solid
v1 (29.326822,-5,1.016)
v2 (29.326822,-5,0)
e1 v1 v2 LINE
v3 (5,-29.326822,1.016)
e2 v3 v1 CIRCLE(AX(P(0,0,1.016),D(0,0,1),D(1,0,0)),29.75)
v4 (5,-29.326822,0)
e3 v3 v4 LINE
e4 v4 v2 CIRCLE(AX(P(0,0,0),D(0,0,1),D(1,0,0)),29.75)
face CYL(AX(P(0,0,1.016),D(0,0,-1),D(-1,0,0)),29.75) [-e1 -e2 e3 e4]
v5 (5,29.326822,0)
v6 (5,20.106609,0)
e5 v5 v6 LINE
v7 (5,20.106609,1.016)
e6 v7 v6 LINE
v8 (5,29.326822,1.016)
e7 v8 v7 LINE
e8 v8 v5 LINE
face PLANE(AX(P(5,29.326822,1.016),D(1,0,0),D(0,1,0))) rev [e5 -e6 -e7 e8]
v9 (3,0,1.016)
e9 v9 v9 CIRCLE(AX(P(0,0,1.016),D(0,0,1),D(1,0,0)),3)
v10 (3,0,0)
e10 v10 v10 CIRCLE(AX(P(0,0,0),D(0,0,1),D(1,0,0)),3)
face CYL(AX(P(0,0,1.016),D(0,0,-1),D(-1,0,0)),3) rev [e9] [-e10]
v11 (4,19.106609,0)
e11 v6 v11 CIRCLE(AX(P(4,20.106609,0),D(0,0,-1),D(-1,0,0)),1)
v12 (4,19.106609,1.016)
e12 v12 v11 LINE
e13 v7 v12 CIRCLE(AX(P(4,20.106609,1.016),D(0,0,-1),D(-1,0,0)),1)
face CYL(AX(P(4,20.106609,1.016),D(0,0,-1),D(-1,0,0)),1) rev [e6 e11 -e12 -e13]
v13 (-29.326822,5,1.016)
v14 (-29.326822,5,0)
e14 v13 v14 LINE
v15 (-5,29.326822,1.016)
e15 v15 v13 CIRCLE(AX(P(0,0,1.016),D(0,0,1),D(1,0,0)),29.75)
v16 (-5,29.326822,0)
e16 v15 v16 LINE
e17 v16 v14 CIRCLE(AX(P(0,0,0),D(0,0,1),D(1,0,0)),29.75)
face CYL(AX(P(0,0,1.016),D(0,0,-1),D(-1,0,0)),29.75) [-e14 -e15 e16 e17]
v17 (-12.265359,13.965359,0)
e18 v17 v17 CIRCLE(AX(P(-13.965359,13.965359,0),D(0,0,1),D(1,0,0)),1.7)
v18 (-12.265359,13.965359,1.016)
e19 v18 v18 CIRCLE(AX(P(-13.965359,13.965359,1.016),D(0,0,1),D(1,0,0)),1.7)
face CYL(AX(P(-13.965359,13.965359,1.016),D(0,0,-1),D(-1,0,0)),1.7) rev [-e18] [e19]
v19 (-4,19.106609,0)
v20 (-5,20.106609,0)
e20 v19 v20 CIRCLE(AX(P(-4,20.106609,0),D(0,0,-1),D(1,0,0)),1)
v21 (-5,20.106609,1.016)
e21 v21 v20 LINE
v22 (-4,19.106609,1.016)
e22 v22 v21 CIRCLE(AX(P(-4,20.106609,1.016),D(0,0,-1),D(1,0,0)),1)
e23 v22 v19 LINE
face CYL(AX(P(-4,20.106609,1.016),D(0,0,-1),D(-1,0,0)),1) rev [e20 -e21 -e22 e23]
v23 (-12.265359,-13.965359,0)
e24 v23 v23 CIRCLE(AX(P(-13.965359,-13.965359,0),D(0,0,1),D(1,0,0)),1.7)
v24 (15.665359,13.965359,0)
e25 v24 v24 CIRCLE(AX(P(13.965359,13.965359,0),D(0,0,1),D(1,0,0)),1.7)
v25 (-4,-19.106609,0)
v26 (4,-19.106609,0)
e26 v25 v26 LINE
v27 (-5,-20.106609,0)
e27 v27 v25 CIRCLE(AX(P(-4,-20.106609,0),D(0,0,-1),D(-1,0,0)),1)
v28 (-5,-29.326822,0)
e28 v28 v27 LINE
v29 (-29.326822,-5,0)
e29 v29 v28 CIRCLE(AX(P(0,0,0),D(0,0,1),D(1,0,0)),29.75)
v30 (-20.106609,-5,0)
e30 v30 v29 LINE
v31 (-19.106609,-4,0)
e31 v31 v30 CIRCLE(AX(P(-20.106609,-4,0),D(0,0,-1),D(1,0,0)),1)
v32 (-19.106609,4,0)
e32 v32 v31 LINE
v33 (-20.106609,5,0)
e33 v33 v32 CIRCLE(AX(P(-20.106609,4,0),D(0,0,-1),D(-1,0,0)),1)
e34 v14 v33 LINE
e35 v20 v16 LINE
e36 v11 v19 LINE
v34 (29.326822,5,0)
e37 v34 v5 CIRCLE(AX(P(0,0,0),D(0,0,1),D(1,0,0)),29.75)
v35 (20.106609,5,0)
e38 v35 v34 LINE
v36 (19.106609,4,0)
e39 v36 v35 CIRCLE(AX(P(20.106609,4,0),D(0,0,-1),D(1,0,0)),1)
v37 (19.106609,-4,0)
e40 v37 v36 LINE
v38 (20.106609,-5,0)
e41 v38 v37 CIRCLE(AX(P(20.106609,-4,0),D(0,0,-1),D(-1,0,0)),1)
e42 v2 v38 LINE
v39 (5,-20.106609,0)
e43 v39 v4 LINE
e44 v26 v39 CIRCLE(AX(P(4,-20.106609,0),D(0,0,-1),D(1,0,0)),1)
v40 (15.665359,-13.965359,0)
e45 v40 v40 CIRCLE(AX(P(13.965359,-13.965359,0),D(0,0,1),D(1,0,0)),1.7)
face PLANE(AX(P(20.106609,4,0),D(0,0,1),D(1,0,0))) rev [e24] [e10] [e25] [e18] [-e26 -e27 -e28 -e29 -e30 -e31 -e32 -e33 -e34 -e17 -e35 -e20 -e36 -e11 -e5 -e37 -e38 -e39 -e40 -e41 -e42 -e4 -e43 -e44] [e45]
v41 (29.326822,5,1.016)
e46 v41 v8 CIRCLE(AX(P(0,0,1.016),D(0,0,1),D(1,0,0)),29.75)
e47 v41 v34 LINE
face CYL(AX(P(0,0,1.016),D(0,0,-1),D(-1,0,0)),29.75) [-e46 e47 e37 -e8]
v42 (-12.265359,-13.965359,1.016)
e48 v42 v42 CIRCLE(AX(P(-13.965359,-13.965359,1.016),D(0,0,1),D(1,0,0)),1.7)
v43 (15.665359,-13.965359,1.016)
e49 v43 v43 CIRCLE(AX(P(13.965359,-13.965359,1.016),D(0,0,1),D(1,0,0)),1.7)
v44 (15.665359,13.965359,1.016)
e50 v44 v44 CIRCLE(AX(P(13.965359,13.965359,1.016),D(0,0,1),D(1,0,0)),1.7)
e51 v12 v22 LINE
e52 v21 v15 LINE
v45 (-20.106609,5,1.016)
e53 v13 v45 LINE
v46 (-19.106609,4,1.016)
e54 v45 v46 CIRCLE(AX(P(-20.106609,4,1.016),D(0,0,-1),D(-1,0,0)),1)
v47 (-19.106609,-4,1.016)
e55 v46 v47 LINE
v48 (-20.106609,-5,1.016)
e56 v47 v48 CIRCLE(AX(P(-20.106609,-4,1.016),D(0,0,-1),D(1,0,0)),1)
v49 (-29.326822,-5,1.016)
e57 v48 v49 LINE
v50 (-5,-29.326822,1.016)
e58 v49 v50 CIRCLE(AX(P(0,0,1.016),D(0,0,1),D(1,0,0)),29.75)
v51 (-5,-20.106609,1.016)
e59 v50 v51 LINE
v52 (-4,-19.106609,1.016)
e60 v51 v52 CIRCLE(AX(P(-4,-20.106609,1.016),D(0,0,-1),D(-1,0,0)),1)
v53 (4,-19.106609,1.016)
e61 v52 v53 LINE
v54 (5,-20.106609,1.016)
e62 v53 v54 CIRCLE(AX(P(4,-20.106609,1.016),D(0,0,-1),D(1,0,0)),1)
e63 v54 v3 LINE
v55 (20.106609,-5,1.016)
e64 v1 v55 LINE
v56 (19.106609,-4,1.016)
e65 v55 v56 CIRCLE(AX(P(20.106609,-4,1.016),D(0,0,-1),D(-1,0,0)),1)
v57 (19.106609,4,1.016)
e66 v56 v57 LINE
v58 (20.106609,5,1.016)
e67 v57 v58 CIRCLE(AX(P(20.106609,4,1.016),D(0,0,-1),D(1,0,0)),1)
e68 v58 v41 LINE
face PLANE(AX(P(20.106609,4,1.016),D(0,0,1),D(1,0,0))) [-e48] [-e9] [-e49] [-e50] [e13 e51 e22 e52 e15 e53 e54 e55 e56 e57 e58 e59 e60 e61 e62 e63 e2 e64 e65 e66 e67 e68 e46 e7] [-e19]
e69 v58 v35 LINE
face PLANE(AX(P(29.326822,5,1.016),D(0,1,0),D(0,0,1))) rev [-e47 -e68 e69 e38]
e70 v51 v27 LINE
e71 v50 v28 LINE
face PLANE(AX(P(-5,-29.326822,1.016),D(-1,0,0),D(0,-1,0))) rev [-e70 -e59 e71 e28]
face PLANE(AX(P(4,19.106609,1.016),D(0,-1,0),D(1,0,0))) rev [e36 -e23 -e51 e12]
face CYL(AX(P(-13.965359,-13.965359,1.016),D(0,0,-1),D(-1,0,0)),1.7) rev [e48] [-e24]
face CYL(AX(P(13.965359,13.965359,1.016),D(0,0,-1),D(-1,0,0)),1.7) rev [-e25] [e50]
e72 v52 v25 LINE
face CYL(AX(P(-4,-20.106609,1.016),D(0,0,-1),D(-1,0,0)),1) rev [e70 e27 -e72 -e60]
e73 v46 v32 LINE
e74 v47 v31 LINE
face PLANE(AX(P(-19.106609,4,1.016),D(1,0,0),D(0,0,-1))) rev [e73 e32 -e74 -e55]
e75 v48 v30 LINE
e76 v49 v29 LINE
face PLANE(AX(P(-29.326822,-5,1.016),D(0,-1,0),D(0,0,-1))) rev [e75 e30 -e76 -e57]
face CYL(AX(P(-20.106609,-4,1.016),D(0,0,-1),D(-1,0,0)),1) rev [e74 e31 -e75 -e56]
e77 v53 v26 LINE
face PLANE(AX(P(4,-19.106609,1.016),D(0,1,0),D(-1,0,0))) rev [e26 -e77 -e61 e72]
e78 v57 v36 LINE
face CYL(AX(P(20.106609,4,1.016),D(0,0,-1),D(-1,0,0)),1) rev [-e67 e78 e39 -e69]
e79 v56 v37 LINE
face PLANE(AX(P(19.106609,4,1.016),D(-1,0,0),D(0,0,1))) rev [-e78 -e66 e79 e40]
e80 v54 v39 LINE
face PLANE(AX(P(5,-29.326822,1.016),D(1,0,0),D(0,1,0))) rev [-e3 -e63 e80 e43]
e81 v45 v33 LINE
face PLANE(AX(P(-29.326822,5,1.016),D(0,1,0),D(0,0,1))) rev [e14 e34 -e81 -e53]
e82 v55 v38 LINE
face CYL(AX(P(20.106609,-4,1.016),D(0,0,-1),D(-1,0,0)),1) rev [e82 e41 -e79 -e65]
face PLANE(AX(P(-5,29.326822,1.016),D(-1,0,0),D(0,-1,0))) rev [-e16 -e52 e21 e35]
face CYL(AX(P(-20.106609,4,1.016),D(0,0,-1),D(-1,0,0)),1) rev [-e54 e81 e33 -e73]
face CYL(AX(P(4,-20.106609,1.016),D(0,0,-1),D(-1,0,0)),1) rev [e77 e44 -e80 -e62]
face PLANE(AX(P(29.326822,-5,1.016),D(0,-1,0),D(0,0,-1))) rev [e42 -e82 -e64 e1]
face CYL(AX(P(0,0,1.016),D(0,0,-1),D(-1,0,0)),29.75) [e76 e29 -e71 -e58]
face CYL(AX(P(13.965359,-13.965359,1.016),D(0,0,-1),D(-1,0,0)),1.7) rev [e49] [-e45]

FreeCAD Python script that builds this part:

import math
import FreeCAD as App
import Part
import Sketcher
from FreeCAD import Vector
Q = App.Units.Quantity

doc = App.newDocument("Part")
body = doc.addObject("PartDesign::Body", "Body")

# Sketch on XY plane
sketch1 = doc.addObject("Sketcher::SketchObject", "Sketch")
body.addObject(sketch1)
sketch1.AttachmentSupport = (doc.XY_Plane, [""])
sketch1.MapMode = "FlatFace"
sketch1.addGeometry([
    Part.LineSegment(Vector(-29.326822, 5, 0), Vector(-20.106609, 5, 0)),  # 0
    Part.ArcOfCircle(Part.Circle(Vector(-20.106609, 4, 0), Vector(0, 0, 1), 1), math.radians(0), math.radians(90)),  # 1
    Part.LineSegment(Vector(-19.106609, 4, 0), Vector(-19.106609, -4, 0)),  # 2
    Part.ArcOfCircle(Part.Circle(Vector(-20.106609, -4, 0), Vector(0, 0, 1), 1), math.radians(-90), math.radians(0)),  # 3
    Part.LineSegment(Vector(-20.106609, -5, 0), Vector(-29.326822, -5, 0)),  # 4
    Part.ArcOfCircle(Part.Circle(Vector(0, 0, 0), Vector(0, 0, 1), 29.75), math.radians(-170.324537), math.radians(-99.675463)),  # 5
    Part.LineSegment(Vector(-5, -29.326822, 0), Vector(-5, -20.106609, 0)),  # 6
    Part.ArcOfCircle(Part.Circle(Vector(-4, -20.106609, 0), Vector(0, 0, 1), 1), math.radians(90), math.radians(180)),  # 7
    Part.LineSegment(Vector(-4, -19.106609, 0), Vector(4, -19.106609, 0)),  # 8
    Part.ArcOfCircle(Part.Circle(Vector(4, -20.106609, 0), Vector(0, 0, 1), 1), math.radians(0), math.radians(90)),  # 9
    Part.LineSegment(Vector(5, -20.106609, 0), Vector(5, -29.326822, 0)),  # 10
    Part.ArcOfCircle(Part.Circle(Vector(0, 0, 0), Vector(0, 0, 1), 29.75), math.radians(-80.324537), math.radians(-9.675463)),  # 11
    Part.LineSegment(Vector(29.326822, -5, 0), Vector(20.106609, -5, 0)),  # 12
    Part.ArcOfCircle(Part.Circle(Vector(20.106609, -4, 0), Vector(0, 0, 1), 1), math.radians(-180), math.radians(-90)),  # 13
    Part.LineSegment(Vector(19.106609, -4, 0), Vector(19.106609, 4, 0)),  # 14
    Part.ArcOfCircle(Part.Circle(Vector(20.106609, 4, 0), Vector(0, 0, 1), 1), math.radians(90), math.radians(180)),  # 15
    Part.LineSegment(Vector(20.106609, 5, 0), Vector(29.326822, 5, 0)),  # 16
    Part.ArcOfCircle(Part.Circle(Vector(0, 0, 0), Vector(0, 0, 1), 29.75), math.radians(9.675463), math.radians(80.324537)),  # 17
    Part.LineSegment(Vector(5, 29.326822, 0), Vector(5, 20.106609, 0)),  # 18
    Part.ArcOfCircle(Part.Circle(Vector(4, 20.106609, 0), Vector(0, 0, 1), 1), math.radians(-90), math.radians(0)),  # 19
    Part.LineSegment(Vector(4, 19.106609, 0), Vector(-4, 19.106609, 0)),  # 20
    Part.ArcOfCircle(Part.Circle(Vector(-4, 20.106609, 0), Vector(0, 0, 1), 1), math.radians(-180), math.radians(-90)),  # 21
    Part.LineSegment(Vector(-5, 20.106609, 0), Vector(-5, 29.326822, 0)),  # 22
    Part.ArcOfCircle(Part.Circle(Vector(0, 0, 0), Vector(0, 0, 1), 29.75), math.radians(99.675463), math.radians(170.324537)),  # 23
    Part.Circle(Vector(-13.965359, -13.965359, 0), Vector(0, 0, 1), 1.7),  # 24
    Part.Circle(Vector(13.965359, -13.965359, 0), Vector(0, 0, 1), 1.7),  # 25
    Part.Circle(Vector(-13.965359, 13.965359, 0), Vector(0, 0, 1), 1.7),  # 26
    Part.Circle(Vector(0, 0, 0), Vector(0, 0, 1), 3),  # 27
    Part.Circle(Vector(13.965359, 13.965359, 0), Vector(0, 0, 1), 1.7),  # 28
], False)
sketch1.addConstraint([
    Sketcher.Constraint("Tangent", 0, 2, 1, 2),
    Sketcher.Constraint("Tangent", 1, 1, 2, 1),
    Sketcher.Constraint("Tangent", 2, 2, 3, 2),
    Sketcher.Constraint("Tangent", 3, 1, 4, 1),
    Sketcher.Constraint("Coincident", 4, 2, 5, 1),
    Sketcher.Constraint("Coincident", 5, 2, 6, 1),
    Sketcher.Constraint("Tangent", 6, 2, 7, 2),
    Sketcher.Constraint("Tangent", 7, 1, 8, 1),
    Sketcher.Constraint("Tangent", 8, 2, 9, 2),
    Sketcher.Constraint("Tangent", 9, 1, 10, 1),
    Sketcher.Constraint("Coincident", 10, 2, 11, 1),
    Sketcher.Constraint("Coincident", 11, 2, 12, 1),
    Sketcher.Constraint("Tangent", 12, 2, 13, 2),
    Sketcher.Constraint("Tangent", 13, 1, 14, 1),
    Sketcher.Constraint("Tangent", 14, 2, 15, 2),
    Sketcher.Constraint("Tangent", 15, 1, 16, 1),
    Sketcher.Constraint("Coincident", 16, 2, 17, 1),
    Sketcher.Constraint("Coincident", 17, 2, 18, 1),
    Sketcher.Constraint("Tangent", 18, 2, 19, 2),
    Sketcher.Constraint("Tangent", 19, 1, 20, 1),
    Sketcher.Constraint("Tangent", 20, 2, 21, 2),
    Sketcher.Constraint("Tangent", 21, 1, 22, 1),
    Sketcher.Constraint("Coincident", 22, 2, 23, 1),
    Sketcher.Constraint("Coincident", 23, 2, 0, 1),
    Sketcher.Constraint("Horizontal", 0),
    Sketcher.Constraint("Vertical", 2),
    Sketcher.Constraint("Horizontal", 4),
    Sketcher.Constraint("Vertical", 6),
    Sketcher.Constraint("Horizontal", 8),
    Sketcher.Constraint("Vertical", 10),
    Sketcher.Constraint("Horizontal", 12),
    Sketcher.Constraint("Vertical", 14),
    Sketcher.Constraint("Horizontal", 16),
    Sketcher.Constraint("Vertical", 18),
    Sketcher.Constraint("Horizontal", 20),
    Sketcher.Constraint("Vertical", 22),
    Sketcher.Constraint("Coincident", 5, 3, -1, 1),
    Sketcher.Constraint("Coincident", 11, 3, -1, 1),
    Sketcher.Constraint("Coincident", 17, 3, -1, 1),
    Sketcher.Constraint("Coincident", 23, 3, -1, 1),
    Sketcher.Constraint("Coincident", 27, 3, -1, 1),
    Sketcher.Constraint("Equal", 1, 3),
    Sketcher.Constraint("Equal", 3, 7),
    Sketcher.Constraint("Equal", 7, 9),
    Sketcher.Constraint("Equal", 5, 11),
    Sketcher.Constraint("Equal", 9, 13),
    Sketcher.Constraint("Equal", 13, 15),
    Sketcher.Constraint("Equal", 11, 17),
    Sketcher.Constraint("Equal", 15, 19),
    Sketcher.Constraint("Equal", 19, 21),
    Sketcher.Constraint("Equal", 17, 23),
    Sketcher.Constraint("Equal", 24, 25),
    Sketcher.Constraint("Equal", 25, 26),
    Sketcher.Constraint("Equal", 26, 28),
    Sketcher.Constraint("Symmetric", 1, 3, 13, 3, -1, 1),
    Sketcher.Constraint("Symmetric", 7, 3, 19, 3, -1, 1),
    Sketcher.Constraint("Symmetric", 25, 3, 26, 3, -1, 1),
    Sketcher.Constraint("Symmetric", 24, 3, 28, 3, -1, 1),
    Sketcher.Constraint("Symmetric", 24, 3, 25, 3, -2),
    Sketcher.Constraint("Horizontal", 3, 3, 13, 3),
    Sketcher.Constraint("Horizontal", 1, 3, 15, 3),
    Sketcher.Constraint("Horizontal", 5, 2, 10, 2),
    Sketcher.Constraint("Horizontal", 17, 2, 22, 2),
    Sketcher.Constraint("Equal", 20, 2),
    Sketcher.Constraint("Equal", 16, 6),
    Sketcher.Constraint("Diameter", 27, Q("6 mm")),
    Sketcher.Constraint("Radius", 1, Q("1 mm")),
    Sketcher.Constraint("Diameter", 24, Q("3.4 mm")),
    Sketcher.Constraint("DistanceX", 8, 1, 8, 2, Q("8 mm")),
    Sketcher.Constraint("Radius", 5, Q("29.75 mm")),
    Sketcher.Constraint("DistanceX", 0, 1, 0, 2, Q("9.220213 mm")),
    Sketcher.Constraint("DistanceX", 24, 3, -1, 1, Q("13.965359 mm")),
    Sketcher.Constraint("DistanceY", 24, 3, -1, 1, Q("13.965359 mm")),
])
pad1 = doc.addObject("PartDesign::Pad", "Pad")
body.addObject(pad1)
pad1.Profile = sketch1
pad1.Length = 1.016

doc.recompute()
